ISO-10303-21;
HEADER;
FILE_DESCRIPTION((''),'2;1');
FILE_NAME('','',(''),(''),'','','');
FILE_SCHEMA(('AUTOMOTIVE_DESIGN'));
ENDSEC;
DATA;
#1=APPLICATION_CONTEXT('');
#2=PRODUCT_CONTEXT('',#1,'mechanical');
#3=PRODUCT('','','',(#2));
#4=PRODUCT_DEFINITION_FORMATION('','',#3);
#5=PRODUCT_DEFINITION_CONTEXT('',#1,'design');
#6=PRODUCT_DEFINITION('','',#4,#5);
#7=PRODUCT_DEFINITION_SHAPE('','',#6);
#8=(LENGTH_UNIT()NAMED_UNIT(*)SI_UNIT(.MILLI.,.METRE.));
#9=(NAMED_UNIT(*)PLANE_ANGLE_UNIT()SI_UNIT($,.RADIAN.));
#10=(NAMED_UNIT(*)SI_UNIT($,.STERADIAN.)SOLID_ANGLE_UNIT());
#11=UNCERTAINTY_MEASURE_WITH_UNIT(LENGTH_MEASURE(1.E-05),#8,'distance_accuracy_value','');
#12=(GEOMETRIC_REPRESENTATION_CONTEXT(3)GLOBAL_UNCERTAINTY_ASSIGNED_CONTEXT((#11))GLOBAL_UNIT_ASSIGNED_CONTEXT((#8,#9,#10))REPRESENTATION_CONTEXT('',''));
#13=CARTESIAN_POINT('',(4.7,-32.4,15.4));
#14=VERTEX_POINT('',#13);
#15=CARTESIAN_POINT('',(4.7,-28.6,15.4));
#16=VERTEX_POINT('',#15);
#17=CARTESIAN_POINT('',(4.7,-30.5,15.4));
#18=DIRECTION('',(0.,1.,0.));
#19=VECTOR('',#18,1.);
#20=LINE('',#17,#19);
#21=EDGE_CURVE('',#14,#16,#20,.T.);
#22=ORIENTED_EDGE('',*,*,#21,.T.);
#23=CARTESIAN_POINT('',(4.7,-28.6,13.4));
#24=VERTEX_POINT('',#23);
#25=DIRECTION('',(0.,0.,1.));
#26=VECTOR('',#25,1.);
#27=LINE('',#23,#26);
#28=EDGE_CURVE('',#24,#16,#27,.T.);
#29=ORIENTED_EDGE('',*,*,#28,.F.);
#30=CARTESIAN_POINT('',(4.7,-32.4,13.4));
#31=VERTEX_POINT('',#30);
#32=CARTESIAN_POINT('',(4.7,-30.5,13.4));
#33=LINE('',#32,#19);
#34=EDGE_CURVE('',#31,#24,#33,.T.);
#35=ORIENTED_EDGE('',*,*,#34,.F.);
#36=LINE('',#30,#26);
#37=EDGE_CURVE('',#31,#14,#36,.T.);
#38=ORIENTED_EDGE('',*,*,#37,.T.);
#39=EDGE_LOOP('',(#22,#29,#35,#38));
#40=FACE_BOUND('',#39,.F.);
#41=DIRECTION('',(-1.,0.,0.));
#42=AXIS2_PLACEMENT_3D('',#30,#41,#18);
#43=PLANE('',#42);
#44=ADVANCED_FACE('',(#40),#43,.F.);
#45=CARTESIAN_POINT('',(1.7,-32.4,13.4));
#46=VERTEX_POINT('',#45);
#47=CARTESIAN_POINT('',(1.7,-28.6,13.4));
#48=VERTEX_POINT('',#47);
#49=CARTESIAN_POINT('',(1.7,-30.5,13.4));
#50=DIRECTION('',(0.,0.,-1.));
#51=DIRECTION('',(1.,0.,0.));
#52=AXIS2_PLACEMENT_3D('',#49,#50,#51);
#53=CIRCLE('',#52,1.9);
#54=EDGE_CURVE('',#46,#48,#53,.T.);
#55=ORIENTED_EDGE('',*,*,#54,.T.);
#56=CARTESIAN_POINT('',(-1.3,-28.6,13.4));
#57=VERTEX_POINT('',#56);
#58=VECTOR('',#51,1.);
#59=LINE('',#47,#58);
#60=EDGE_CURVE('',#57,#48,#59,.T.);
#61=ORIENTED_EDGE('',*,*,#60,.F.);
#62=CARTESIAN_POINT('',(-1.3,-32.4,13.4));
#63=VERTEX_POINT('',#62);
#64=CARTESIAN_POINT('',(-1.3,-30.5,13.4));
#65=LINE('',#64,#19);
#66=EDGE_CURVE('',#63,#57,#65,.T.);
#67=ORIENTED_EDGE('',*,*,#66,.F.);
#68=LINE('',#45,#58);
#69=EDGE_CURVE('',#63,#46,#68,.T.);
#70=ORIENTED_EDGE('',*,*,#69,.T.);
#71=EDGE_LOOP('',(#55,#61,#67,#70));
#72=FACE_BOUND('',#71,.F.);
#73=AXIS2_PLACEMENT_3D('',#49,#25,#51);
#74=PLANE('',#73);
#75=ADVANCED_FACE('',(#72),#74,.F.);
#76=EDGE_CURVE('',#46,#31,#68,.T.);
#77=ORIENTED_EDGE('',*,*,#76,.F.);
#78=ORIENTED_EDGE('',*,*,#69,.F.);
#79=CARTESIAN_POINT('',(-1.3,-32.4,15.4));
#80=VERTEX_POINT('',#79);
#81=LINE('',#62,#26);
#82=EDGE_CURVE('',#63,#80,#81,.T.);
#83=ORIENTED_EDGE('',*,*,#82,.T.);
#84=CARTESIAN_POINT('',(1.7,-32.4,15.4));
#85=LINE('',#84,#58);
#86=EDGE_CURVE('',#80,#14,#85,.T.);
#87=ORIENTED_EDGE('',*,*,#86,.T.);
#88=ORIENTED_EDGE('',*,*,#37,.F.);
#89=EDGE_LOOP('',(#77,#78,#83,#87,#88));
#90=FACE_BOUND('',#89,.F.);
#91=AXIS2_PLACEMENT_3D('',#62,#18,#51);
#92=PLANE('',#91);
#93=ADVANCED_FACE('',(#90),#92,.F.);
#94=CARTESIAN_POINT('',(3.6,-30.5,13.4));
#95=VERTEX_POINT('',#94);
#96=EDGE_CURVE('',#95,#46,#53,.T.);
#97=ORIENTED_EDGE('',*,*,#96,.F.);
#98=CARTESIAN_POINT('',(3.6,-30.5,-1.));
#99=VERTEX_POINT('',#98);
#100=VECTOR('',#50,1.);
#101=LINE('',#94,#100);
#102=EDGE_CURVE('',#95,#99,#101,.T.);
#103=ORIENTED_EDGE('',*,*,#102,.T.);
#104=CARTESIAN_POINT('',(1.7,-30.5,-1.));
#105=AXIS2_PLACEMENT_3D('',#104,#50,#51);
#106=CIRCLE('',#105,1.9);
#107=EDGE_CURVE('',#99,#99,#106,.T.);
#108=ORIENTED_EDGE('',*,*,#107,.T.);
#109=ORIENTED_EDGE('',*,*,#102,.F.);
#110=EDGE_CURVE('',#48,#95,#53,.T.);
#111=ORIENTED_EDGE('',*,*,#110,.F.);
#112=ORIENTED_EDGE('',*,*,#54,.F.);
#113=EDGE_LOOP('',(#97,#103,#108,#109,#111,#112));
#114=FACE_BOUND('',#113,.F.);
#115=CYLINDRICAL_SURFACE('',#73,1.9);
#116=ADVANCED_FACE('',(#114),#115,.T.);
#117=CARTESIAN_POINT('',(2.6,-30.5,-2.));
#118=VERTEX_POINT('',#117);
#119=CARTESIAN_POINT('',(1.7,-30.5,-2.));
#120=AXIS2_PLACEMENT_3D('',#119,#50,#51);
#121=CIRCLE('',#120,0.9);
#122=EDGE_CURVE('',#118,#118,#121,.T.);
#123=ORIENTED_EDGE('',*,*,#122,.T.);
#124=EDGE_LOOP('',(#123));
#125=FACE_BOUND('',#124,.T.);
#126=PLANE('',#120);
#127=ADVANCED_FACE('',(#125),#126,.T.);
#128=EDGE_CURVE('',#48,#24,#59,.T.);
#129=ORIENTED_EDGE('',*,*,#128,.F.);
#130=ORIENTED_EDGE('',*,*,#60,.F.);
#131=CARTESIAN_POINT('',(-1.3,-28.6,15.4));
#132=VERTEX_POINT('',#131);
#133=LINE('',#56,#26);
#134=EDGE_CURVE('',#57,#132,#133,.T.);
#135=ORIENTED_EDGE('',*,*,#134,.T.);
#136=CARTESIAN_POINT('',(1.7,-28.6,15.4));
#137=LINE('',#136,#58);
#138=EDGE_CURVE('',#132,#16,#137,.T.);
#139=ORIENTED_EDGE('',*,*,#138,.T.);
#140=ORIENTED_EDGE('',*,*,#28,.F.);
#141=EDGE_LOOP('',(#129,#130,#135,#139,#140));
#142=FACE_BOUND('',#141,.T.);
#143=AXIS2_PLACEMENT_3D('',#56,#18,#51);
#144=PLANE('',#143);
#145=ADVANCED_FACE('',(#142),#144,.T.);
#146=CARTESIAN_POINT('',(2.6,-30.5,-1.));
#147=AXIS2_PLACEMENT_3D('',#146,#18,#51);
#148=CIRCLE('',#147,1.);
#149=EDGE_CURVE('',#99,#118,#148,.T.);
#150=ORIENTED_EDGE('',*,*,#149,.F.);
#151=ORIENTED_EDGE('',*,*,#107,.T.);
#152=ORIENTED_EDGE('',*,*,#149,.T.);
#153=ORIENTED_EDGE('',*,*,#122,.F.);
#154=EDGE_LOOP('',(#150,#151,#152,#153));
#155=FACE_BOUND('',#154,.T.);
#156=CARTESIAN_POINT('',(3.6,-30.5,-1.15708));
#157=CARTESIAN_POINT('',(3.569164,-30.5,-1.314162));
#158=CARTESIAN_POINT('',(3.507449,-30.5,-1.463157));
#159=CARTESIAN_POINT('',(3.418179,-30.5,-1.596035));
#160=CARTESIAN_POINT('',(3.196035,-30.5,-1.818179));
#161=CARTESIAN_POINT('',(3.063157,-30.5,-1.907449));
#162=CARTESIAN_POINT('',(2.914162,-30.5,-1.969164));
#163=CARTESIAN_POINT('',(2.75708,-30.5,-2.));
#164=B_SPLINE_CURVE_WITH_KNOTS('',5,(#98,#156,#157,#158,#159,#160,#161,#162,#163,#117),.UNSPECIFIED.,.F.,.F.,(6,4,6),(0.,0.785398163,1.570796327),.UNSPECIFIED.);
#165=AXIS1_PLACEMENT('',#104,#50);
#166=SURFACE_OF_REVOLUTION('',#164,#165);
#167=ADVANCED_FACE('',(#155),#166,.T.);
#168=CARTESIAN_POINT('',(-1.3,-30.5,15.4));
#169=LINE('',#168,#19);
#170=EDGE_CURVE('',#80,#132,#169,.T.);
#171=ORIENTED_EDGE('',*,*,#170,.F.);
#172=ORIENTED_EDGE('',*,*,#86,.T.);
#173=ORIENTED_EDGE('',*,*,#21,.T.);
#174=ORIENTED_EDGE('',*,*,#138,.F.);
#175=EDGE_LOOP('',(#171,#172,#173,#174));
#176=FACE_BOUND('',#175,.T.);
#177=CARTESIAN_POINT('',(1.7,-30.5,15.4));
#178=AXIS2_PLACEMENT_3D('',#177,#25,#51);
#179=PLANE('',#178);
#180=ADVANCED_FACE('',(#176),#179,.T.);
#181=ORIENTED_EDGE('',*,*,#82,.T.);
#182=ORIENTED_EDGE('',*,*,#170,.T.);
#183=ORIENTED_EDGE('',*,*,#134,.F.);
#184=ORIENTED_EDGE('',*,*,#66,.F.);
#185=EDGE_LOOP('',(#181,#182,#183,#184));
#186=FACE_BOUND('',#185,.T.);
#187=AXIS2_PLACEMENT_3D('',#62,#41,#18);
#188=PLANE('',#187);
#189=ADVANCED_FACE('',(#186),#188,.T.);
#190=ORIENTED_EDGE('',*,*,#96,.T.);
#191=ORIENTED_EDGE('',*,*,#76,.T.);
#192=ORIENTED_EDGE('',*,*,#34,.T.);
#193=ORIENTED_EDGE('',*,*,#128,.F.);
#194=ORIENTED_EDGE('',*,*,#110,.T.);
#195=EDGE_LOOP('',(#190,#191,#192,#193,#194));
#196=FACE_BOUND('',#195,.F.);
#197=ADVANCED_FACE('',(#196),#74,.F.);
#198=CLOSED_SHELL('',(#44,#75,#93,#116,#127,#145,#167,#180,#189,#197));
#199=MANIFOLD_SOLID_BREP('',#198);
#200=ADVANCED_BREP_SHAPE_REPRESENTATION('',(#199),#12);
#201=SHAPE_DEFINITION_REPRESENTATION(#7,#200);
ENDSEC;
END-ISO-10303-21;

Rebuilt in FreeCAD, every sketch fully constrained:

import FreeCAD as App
import Part
import Sketcher

V = App.Vector


def edges_at(feature, points):
    """Names of the edges that pass closest to the given points."""
    edges = feature.Shape.Edges
    near = lambda p: min(range(len(edges)), key=lambda i: edges[i].distToShape(Part.Vertex(*p))[0])
    return sorted({f"Edge{near(p) + 1}" for p in points})

doc = App.newDocument("Part")
body = doc.addObject("PartDesign::Body", "Body")

# Sketch on XY plane
sketch1 = body.newObject("Sketcher::SketchObject", "Sketch")
sketch1.AttachmentSupport = (doc.getObject("XY_Plane"), [""])
sketch1.MapMode = "FlatFace"
sketch1.AttachmentOffset = App.Placement(V(0, 0, 13.4), App.Rotation())
sketch1.addGeometry(Part.LineSegment(V(-1.3, -28.6, 0), V(-1.3, -32.4, 0)), False)
sketch1.addGeometry(Part.LineSegment(V(-1.3, -32.4, 0), V(4.7, -32.4, 0)), False)
sketch1.addGeometry(Part.LineSegment(V(4.7, -32.4, 0), V(4.7, -28.6, 0)), False)
sketch1.addGeometry(Part.LineSegment(V(4.7, -28.6, 0), V(-1.3, -28.6, 0)), False)
sketch1.addConstraint(Sketcher.Constraint("Coincident", 0, 2, 1, 1))
sketch1.addConstraint(Sketcher.Constraint("Coincident", 1, 2, 2, 1))
sketch1.addConstraint(Sketcher.Constraint("Coincident", 2, 2, 3, 1))
sketch1.addConstraint(Sketcher.Constraint("Coincident", 3, 2, 0, 1))
sketch1.addConstraint(Sketcher.Constraint("Vertical", 0))
sketch1.addConstraint(Sketcher.Constraint("Horizontal", 1))
sketch1.addConstraint(Sketcher.Constraint("Vertical", 2))
sketch1.addConstraint(Sketcher.Constraint("Horizontal", 3))
sketch1.addConstraint(Sketcher.Constraint("DistanceX", 1, 1, 1, 2, 6.0))
sketch1.addConstraint(Sketcher.Constraint("DistanceY", 0, 2, 0, 1, 3.8))
sketch1.addConstraint(Sketcher.Constraint("DistanceX", 0, 2, -1, 1, 1.3))
sketch1.addConstraint(Sketcher.Constraint("DistanceY", 0, 2, -1, 1, 32.4))
pad1 = body.newObject("PartDesign::Pad", "Pad")
pad1.Profile = sketch1
pad1.Length = 2

# Sketch on XY plane
sketch2 = body.newObject("Sketcher::SketchObject", "Sketch001")
sketch2.AttachmentSupport = (doc.getObject("XY_Plane"), [""])
sketch2.MapMode = "FlatFace"
sketch2.AttachmentOffset = App.Placement(V(0, 0, 13.4), App.Rotation())
sketch2.addGeometry(Part.Circle(V(1.7, -30.5, 0), V(0, 0, 1), 1.9), False)
sketch2.addConstraint(Sketcher.Constraint("Diameter", 0, 3.8))
sketch2.addConstraint(Sketcher.Constraint("DistanceX", -1, 1, 0, 3, 1.7))
sketch2.addConstraint(Sketcher.Constraint("DistanceY", 0, 3, -1, 1, 30.5))
pad2 = body.newObject("PartDesign::Pad", "Pad001")
pad2.Profile = sketch2
pad2.Length = 15.4
pad2.Reversed = True
doc.recompute()

fillet = body.newObject("PartDesign::Fillet", "Fillet")
fillet.Base = (pad2, edges_at(pad2, [(-0.2, -30.5, -2)]))
fillet.Radius = 1

doc.recompute()
